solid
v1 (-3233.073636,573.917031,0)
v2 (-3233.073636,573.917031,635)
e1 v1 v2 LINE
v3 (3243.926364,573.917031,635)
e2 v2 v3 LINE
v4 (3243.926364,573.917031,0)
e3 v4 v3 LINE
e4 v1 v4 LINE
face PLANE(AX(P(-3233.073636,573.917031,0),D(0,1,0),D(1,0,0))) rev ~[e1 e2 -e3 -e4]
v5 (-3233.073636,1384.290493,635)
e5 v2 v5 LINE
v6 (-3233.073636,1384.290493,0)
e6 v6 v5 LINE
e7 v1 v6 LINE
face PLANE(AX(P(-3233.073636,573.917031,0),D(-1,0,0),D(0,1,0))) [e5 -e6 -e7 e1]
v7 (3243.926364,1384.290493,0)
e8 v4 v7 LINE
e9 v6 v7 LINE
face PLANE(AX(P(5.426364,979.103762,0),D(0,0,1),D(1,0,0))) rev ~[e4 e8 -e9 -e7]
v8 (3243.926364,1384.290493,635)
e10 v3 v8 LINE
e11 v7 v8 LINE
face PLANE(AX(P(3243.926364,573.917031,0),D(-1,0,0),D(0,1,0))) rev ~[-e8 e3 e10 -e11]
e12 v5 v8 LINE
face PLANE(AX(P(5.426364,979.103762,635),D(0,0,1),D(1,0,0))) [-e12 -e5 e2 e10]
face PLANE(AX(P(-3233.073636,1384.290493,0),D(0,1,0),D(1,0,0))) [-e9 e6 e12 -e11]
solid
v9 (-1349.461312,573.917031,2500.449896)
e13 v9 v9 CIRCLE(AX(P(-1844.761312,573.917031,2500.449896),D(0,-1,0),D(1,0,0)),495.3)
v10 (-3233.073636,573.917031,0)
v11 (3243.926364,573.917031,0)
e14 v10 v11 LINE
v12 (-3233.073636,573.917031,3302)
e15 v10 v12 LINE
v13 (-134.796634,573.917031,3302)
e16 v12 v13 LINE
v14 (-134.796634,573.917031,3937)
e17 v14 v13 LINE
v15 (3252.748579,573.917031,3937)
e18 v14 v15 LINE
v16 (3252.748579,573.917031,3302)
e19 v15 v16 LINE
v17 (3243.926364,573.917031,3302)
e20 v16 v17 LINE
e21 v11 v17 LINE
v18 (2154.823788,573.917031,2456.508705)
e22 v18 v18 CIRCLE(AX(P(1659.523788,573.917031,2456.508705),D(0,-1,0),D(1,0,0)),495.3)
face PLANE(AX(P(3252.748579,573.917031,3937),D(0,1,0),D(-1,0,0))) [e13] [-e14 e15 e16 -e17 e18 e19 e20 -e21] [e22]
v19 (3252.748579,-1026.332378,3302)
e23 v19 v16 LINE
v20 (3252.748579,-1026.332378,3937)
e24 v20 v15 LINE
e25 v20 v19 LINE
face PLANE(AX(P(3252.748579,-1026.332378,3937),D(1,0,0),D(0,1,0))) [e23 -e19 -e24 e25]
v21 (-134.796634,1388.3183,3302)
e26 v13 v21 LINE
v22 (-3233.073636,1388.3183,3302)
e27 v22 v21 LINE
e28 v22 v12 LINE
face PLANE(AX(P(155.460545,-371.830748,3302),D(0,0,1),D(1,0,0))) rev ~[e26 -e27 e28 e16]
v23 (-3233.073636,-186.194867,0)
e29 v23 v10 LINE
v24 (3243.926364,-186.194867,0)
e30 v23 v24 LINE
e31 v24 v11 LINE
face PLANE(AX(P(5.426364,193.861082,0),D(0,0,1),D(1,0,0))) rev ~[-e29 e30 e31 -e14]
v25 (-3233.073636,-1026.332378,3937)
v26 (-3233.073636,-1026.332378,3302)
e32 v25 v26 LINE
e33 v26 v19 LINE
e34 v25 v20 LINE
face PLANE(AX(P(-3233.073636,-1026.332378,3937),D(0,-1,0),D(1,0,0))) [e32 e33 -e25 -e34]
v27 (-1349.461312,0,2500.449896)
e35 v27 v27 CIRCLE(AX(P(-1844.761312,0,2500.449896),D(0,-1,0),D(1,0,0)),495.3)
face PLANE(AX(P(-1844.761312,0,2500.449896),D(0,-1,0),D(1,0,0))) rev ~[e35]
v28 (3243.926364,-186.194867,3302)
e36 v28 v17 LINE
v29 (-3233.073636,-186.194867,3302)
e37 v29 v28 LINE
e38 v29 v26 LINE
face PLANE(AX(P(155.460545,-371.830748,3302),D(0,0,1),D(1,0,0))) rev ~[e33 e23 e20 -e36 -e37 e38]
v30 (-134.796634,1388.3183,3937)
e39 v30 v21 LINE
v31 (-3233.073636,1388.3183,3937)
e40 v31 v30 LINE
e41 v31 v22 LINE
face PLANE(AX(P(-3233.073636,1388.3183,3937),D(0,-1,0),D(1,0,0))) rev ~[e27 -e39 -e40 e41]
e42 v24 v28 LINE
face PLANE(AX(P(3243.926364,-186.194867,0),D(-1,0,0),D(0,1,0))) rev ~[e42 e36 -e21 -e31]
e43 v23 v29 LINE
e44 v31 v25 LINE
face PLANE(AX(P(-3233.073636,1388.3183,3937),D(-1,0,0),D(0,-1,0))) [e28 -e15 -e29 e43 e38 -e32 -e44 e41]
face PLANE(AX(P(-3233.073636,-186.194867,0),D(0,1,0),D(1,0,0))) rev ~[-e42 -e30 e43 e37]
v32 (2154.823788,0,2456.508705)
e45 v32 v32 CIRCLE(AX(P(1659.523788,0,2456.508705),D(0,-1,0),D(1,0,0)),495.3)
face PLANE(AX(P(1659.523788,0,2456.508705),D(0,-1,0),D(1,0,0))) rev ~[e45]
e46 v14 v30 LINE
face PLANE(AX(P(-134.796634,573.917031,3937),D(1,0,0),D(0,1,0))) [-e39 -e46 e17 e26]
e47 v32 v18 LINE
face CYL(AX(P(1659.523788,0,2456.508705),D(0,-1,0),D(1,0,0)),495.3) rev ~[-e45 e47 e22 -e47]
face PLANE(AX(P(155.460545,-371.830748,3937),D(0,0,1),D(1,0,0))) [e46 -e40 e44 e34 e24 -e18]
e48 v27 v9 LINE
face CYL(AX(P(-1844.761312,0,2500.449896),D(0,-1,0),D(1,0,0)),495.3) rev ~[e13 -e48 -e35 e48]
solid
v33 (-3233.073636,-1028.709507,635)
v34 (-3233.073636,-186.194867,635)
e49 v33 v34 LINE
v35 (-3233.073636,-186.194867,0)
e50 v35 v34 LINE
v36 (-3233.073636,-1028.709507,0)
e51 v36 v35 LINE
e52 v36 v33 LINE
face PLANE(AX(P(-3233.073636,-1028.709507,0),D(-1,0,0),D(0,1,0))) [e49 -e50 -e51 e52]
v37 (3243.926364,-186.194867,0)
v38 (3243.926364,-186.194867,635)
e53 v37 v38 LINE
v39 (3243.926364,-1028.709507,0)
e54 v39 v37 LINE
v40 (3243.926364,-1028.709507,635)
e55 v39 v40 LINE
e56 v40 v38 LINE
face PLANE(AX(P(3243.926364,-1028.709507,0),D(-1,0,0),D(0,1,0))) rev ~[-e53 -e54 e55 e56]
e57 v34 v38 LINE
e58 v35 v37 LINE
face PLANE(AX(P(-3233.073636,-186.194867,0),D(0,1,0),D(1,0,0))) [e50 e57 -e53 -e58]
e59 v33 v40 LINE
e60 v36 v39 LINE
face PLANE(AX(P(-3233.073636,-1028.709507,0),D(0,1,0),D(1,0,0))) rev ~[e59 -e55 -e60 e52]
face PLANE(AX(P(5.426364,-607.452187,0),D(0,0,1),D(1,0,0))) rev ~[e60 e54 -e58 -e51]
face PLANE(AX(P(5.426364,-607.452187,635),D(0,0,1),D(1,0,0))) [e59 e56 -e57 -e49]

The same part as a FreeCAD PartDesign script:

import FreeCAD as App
import Part
import Sketcher
from FreeCAD import Vector
Q = App.Units.Quantity

doc = App.newDocument("Part")
body = doc.addObject("PartDesign::Body", "Body")

# Sketch on XY plane
sketch1 = body.newObject("Sketcher::SketchObject", "Sketch")
sketch1.AttachmentSupport = (doc.getObject("XY_Plane"), [""])
sketch1.MapMode = "FlatFace"
sketch1.addGeometry(Part.LineSegment(Vector(-3233.073636, 1384.290493, 0), Vector(-3233.073636, 573.917031, 0)), False)
sketch1.addGeometry(Part.LineSegment(Vector(-3233.073636, 573.917031, 0), Vector(3243.926364, 573.917031, 0)), False)
sketch1.addGeometry(Part.LineSegment(Vector(3243.926364, 573.917031, 0), Vector(3243.926364, 1384.290493, 0)), False)
sketch1.addGeometry(Part.LineSegment(Vector(3243.926364, 1384.290493, 0), Vector(-3233.073636, 1384.290493, 0)), False)
sketch1.addConstraint(Sketcher.Constraint("Coincident", 0, 2, 1, 1))
sketch1.addConstraint(Sketcher.Constraint("Coincident", 1, 2, 2, 1))
sketch1.addConstraint(Sketcher.Constraint("Coincident", 2, 2, 3, 1))
sketch1.addConstraint(Sketcher.Constraint("Coincident", 3, 2, 0, 1))
sketch1.addConstraint(Sketcher.Constraint("Vertical", 0))
sketch1.addConstraint(Sketcher.Constraint("Horizontal", 1))
sketch1.addConstraint(Sketcher.Constraint("Vertical", 2))
sketch1.addConstraint(Sketcher.Constraint("Horizontal", 3))
sketch1.addConstraint(Sketcher.Constraint("DistanceX", 1, 1, 1, 2, Q("255 in")))
sketch1.addConstraint(Sketcher.Constraint("DistanceY", 0, 2, 0, 1, 810.373462))
sketch1.addConstraint(Sketcher.Constraint("DistanceY", -1, 1, 0, 2, 573.917031))
sketch1.addConstraint(Sketcher.Constraint("DistanceX", 0, 2, -1, 1, 3233.073636))
pad1 = body.newObject("PartDesign::Pad", "Pad")
pad1.Profile = sketch1
pad1.Length = Q("25 in")
body2 = doc.addObject("PartDesign::Body", "Body001")

# Sketch on XY plane
sketch2 = body2.newObject("Sketcher::SketchObject", "Sketch001")
sketch2.AttachmentSupport = (doc.getObject("XY_Plane001"), [""])
sketch2.MapMode = "FlatFace"
sketch2.addGeometry(Part.LineSegment(Vector(-3233.073636, -186.194867, 0), Vector(-3233.073636, -1028.709507, 0)), False)
sketch2.addGeometry(Part.LineSegment(Vector(-3233.073636, -1028.709507, 0), Vector(3243.926364, -1028.709507, 0)), False)
sketch2.addGeometry(Part.LineSegment(Vector(3243.926364, -1028.709507, 0), Vector(3243.926364, -186.194867, 0)), False)
sketch2.addGeometry(Part.LineSegment(Vector(3243.926364, -186.194867, 0), Vector(-3233.073636, -186.194867, 0)), False)
sketch2.addConstraint(Sketcher.Constraint("Coincident", 0, 2, 1, 1))
sketch2.addConstraint(Sketcher.Constraint("Coincident", 1, 2, 2, 1))
sketch2.addConstraint(Sketcher.Constraint("Coincident", 2, 2, 3, 1))
sketch2.addConstraint(Sketcher.Constraint("Coincident", 3, 2, 0, 1))
sketch2.addConstraint(Sketcher.Constraint("Vertical", 0))
sketch2.addConstraint(Sketcher.Constraint("Horizontal", 1))
sketch2.addConstraint(Sketcher.Constraint("Vertical", 2))
sketch2.addConstraint(Sketcher.Constraint("Horizontal", 3))
sketch2.addConstraint(Sketcher.Constraint("DistanceX", 1, 1, 1, 2, Q("255 in")))
sketch2.addConstraint(Sketcher.Constraint("DistanceY", 0, 2, 0, 1, 842.51464))
sketch2.addConstraint(Sketcher.Constraint("DistanceX", 0, 2, -1, 1, 3233.073636))
sketch2.addConstraint(Sketcher.Constraint("DistanceY", 0, 2, -1, 1, 1028.709507))
pad2 = body2.newObject("PartDesign::Pad", "Pad001")
pad2.Profile = sketch2
pad2.Length = Q("25 in")
body3 = doc.addObject("PartDesign::Body", "Body002")

# Sketch on XY plane
sketch3 = body3.newObject("Sketcher::SketchObject", "Sketch002")
sketch3.AttachmentSupport = (doc.getObject("XY_Plane002"), [""])
sketch3.MapMode = "FlatFace"
sketch3.addGeometry(Part.LineSegment(Vector(-3233.073636, 573.917031, 0), Vector(-3233.073636, -186.194867, 0)), False)
sketch3.addGeometry(Part.LineSegment(Vector(-3233.073636, -186.194867, 0), Vector(3243.926364, -186.194867, 0)), False)
sketch3.addGeometry(Part.LineSegment(Vector(3243.926364, -186.194867, 0), Vector(3243.926364, 573.917031, 0)), False)
sketch3.addGeometry(Part.LineSegment(Vector(3243.926364, 573.917031, 0), Vector(-3233.073636, 573.917031, 0)), False)
sketch3.addConstraint(Sketcher.Constraint("Coincident", 0, 2, 1, 1))
sketch3.addConstraint(Sketcher.Constraint("Coincident", 1, 2, 2, 1))
sketch3.addConstraint(Sketcher.Constraint("Coincident", 2, 2, 3, 1))
sketch3.addConstraint(Sketcher.Constraint("Coincident", 3, 2, 0, 1))
sketch3.addConstraint(Sketcher.Constraint("Vertical", 0))
sketch3.addConstraint(Sketcher.Constraint("Horizontal", 1))
sketch3.addConstraint(Sketcher.Constraint("Vertical", 2))
sketch3.addConstraint(Sketcher.Constraint("Horizontal", 3))
sketch3.addConstraint(Sketcher.Constraint("DistanceX", 1, 1, 1, 2, Q("255 in")))
sketch3.addConstraint(Sketcher.Constraint("DistanceY", 0, 2, 0, 1, 760.111898))
sketch3.addConstraint(Sketcher.Constraint("DistanceY", -1, 1, 2, 2, 573.917031))
sketch3.addConstraint(Sketcher.Constraint("DistanceX", 0, 2, -1, 1, 3233.073636))
pad3 = body3.newObject("PartDesign::Pad", "Pad002")
pad3.Profile = sketch3
pad3.Length = Q("155 in")

# Sketch on XZ plane
sketch4 = body3.newObject("Sketcher::SketchObject", "Sketch003")
sketch4.AttachmentSupport = (doc.getObject("XZ_Plane002"), [""])
sketch4.MapMode = "FlatFace"
sketch4.addGeometry(Part.Circle(Vector(1659.523788, 2456.508705, 0), Vector(0, 0, 1), 495.3), False)
sketch4.addGeometry(Part.Circle(Vector(-1844.761312, 2500.449896, 0), Vector(0, 0, 1), 495.3), False)
sketch4.addConstraint(Sketcher.Constraint("Equal", 0, 1))
sketch4.addConstraint(Sketcher.Constraint("Diameter", 0, Q("39 in")))
sketch4.addConstraint(Sketcher.Constraint("DistanceX", 1, 3, 0, 3, 3504.2851))
sketch4.addConstraint(Sketcher.Constraint("DistanceX", -1, 1, 0, 3, 1659.523788))
sketch4.addConstraint(Sketcher.Constraint("DistanceY", 0, 3, 1, 3, 43.94119))
sketch4.addConstraint(Sketcher.Constraint("DistanceY", -1, 1, 0, 3, 2456.508705))
pocket1 = body3.newObject("PartDesign::Pocket", "Pocket")
pocket1.Profile = sketch4
pocket1.Type = "ThroughAll"

# Sketch on XY plane
sketch5 = body3.newObject("Sketcher::SketchObject", "Sketch004")
sketch5.AttachmentSupport = (doc.getObject("XY_Plane002"), [""])
sketch5.MapMode = "FlatFace"
sketch5.AttachmentOffset = App.Placement(Vector(0, 0, 155 * 25.4), App.Rotation())
sketch5.addGeometry(Part.LineSegment(Vector(3252.748579, -1026.332378, 0), Vector(3252.748579, 573.917031, 0)), False)
sketch5.addGeometry(Part.LineSegment(Vector(3252.748579, 573.917031, 0), Vector(-134.796634, 573.917031, 0)), False)
sketch5.addGeometry(Part.LineSegment(Vector(-134.796634, 573.917031, 0), Vector(-134.796634, 1388.3183, 0)), False)
sketch5.addGeometry(Part.LineSegment(Vector(-134.796634, 1388.3183, 0), Vector(-3233.073636, 1388.3183, 0)), False)
sketch5.addGeometry(Part.LineSegment(Vector(-3233.073636, 1388.3183, 0), Vector(-3233.073636, -1026.332378, 0)), False)
sketch5.addGeometry(Part.LineSegment(Vector(-3233.073636, -1026.332378, 0), Vector(3252.748579, -1026.332378, 0)), False)
sketch5.addConstraint(Sketcher.Constraint("Coincident", 0, 2, 1, 1))
sketch5.addConstraint(Sketcher.Constraint("Coincident", 1, 2, 2, 1))
sketch5.addConstraint(Sketcher.Constraint("Coincident", 2, 2, 3, 1))
sketch5.addConstraint(Sketcher.Constraint("Coincident", 3, 2, 4, 1))
sketch5.addConstraint(Sketcher.Constraint("Coincident", 4, 2, 5, 1))
sketch5.addConstraint(Sketcher.Constraint("Coincident", 5, 2, 0, 1))
sketch5.addConstraint(Sketcher.Constraint("Vertical", 0))
sketch5.addConstraint(Sketcher.Constraint("Horizontal", 1))
sketch5.addConstraint(Sketcher.Constraint("Vertical", 2))
sketch5.addConstraint(Sketcher.Constraint("Horizontal", 3))
sketch5.addConstraint(Sketcher.Constraint("Vertical", 4))
sketch5.addConstraint(Sketcher.Constraint("Horizontal", 5))
sketch5.addConstraint(Sketcher.Constraint("DistanceX", 3, 2, 3, 1, 3098.277002))
sketch5.addConstraint(Sketcher.Constraint("DistanceY", 0, 1, 0, 2, 1600.24941))
sketch5.addConstraint(Sketcher.Constraint("DistanceY", 2, 1, 2, 2, 814.401269))
sketch5.addConstraint(Sketcher.Constraint("DistanceY", -1, 1, 2, 2, 1388.3183))
sketch5.addConstraint(Sketcher.Constraint("DistanceX", 1, 2, 1, 1, 3387.545213))
sketch5.addConstraint(Sketcher.Constraint("DistanceX", -1, 1, 0, 2, 3252.748579))
pad4 = body3.newObject("PartDesign::Pad", "Pad003")
pad4.Profile = sketch5
pad4.Length = Q("25 in")
pad4.Reversed = True

doc.recompute()
